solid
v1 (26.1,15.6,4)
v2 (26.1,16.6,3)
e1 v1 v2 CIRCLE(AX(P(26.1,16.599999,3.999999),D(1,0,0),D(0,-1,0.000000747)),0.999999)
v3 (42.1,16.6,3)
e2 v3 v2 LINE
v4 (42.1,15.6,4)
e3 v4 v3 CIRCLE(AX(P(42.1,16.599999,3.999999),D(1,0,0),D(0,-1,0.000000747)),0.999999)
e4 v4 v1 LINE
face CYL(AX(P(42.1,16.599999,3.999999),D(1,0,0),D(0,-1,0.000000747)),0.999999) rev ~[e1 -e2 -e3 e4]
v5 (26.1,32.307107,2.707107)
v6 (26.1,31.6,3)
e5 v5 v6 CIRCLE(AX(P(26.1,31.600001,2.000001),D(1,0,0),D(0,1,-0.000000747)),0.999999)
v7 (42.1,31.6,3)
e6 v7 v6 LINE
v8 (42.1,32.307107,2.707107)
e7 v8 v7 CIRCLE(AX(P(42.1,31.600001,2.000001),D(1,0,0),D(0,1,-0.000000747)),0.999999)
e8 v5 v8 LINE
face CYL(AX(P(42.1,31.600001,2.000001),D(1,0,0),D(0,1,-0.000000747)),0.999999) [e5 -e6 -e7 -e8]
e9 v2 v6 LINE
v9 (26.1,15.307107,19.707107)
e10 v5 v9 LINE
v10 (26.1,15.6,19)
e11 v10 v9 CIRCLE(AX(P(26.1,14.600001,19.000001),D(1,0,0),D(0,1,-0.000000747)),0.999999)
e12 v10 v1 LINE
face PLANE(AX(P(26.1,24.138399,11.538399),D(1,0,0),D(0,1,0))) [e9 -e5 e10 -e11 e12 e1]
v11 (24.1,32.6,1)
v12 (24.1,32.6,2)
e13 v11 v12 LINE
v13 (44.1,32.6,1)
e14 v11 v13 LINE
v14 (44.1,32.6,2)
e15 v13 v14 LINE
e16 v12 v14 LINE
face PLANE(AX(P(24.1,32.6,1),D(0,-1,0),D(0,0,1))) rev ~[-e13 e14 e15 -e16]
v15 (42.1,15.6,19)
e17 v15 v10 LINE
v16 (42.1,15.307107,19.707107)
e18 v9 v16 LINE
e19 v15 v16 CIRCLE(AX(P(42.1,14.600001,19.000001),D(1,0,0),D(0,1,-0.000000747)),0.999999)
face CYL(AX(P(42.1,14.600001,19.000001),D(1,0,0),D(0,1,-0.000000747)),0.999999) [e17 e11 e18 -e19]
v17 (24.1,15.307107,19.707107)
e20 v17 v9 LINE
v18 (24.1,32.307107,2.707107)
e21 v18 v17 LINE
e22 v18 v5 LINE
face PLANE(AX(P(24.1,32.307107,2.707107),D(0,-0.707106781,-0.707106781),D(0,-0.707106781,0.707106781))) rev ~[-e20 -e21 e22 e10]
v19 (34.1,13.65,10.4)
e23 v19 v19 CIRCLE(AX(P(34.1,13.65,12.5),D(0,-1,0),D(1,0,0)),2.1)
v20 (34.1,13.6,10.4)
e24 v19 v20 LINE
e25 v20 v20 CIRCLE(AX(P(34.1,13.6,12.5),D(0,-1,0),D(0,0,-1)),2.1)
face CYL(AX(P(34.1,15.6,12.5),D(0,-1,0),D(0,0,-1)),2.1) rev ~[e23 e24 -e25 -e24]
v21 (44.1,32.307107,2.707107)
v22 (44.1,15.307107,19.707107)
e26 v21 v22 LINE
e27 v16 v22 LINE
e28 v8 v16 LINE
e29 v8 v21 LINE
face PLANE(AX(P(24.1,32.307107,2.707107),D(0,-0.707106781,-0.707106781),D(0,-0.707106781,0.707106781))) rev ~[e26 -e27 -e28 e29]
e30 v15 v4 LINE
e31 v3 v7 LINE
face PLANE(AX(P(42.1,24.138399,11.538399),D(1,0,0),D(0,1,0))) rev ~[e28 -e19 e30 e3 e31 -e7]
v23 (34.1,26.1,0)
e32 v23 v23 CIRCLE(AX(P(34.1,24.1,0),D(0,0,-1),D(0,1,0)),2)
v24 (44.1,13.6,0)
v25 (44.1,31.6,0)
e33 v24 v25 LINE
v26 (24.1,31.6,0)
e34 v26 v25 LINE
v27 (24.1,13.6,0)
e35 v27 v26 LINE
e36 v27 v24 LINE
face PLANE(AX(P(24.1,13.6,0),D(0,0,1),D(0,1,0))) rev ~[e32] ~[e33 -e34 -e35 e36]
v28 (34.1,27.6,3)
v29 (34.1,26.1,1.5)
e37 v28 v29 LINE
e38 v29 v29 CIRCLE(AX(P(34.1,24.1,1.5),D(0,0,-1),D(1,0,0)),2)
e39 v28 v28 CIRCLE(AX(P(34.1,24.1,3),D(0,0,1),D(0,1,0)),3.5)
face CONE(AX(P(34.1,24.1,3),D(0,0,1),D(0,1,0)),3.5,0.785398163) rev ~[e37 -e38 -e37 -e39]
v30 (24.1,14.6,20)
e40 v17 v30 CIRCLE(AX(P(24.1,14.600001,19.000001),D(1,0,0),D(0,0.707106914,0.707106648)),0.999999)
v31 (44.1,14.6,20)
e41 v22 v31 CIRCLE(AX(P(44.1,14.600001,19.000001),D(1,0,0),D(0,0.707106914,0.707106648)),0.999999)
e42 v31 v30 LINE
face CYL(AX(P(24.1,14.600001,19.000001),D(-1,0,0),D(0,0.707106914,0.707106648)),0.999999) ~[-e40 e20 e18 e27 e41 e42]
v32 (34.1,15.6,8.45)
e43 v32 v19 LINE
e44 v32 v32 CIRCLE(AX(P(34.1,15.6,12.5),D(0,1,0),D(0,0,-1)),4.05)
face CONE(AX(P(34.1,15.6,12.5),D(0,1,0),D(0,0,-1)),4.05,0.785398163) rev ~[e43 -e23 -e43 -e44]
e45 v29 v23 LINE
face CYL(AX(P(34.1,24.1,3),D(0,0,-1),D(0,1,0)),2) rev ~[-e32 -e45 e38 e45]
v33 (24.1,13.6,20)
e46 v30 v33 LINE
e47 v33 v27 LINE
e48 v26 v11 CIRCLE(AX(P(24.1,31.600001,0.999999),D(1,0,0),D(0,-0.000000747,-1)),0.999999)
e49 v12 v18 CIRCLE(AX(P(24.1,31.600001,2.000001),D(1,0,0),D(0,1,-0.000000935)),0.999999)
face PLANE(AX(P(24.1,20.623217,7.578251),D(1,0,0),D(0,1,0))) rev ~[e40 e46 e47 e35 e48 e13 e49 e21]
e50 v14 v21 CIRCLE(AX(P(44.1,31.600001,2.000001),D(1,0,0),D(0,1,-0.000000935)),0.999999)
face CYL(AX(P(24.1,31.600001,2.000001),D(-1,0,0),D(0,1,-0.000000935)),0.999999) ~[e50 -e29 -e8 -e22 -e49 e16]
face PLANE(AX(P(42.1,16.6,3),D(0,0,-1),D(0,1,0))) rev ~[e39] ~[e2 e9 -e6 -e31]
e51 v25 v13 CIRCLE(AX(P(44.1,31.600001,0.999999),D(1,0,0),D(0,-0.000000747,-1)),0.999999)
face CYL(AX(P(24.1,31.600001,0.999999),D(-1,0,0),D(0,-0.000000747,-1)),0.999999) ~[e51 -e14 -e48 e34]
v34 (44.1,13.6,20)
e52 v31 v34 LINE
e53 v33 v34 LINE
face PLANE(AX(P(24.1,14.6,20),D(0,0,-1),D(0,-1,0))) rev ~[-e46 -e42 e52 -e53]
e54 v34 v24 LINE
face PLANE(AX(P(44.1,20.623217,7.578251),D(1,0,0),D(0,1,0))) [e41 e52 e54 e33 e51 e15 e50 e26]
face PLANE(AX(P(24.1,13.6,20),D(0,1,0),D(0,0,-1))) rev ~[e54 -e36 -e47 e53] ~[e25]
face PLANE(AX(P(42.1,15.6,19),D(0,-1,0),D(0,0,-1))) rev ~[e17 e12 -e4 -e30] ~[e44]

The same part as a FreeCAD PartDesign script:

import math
import FreeCAD as App
import Part
import Sketcher
Q = App.Units.Quantity

doc = App.newDocument("Part")
body = doc.addObject("PartDesign::Body", "Body")

# Sketch on XZ plane
sketch1 = body.newObject("Sketcher::SketchObject", "Sketch")
sketch1.AttachmentSupport = (doc.getObject("XZ_Plane"), [""])
sketch1.MapMode = "FlatFace"
sketch1.addGeometry(Part.LineSegment(App.Vector(1, 0, 0), App.Vector(19, 0, 0)), False)
sketch1.addGeometry(Part.ArcOfCircle(Part.Circle(App.Vector(19, 1, 0), App.Vector(0, 0, 1), 1), math.radians(-90), math.radians(0)), False)
sketch1.addGeometry(Part.LineSegment(App.Vector(20, 1, 0), App.Vector(20, 2, 0)), False)
sketch1.addGeometry(Part.ArcOfCircle(Part.Circle(App.Vector(19, 2, 0), App.Vector(0, 0, 1), 1), math.radians(0), math.radians(45)), False)
sketch1.addGeometry(Part.LineSegment(App.Vector(19.7, 2.7, 0), App.Vector(2.7, 19.7, 0)), False)
sketch1.addGeometry(Part.ArcOfCircle(Part.Circle(App.Vector(2, 19, 0), App.Vector(0, 0, 1), 1), math.radians(45), math.radians(90)), False)
sketch1.addGeometry(Part.LineSegment(App.Vector(2, 20, 0), App.Vector(1, 20, 0)), False)
sketch1.addGeometry(Part.LineSegment(App.Vector(1, 20, 0), App.Vector(1, 0, 0)), False)
sketch1.addConstraint(Sketcher.Constraint("Tangent", 0, 2, 1, 1))
sketch1.addConstraint(Sketcher.Constraint("Tangent", 1, 2, 2, 1))
sketch1.addConstraint(Sketcher.Constraint("Tangent", 2, 2, 3, 1))
sketch1.addConstraint(Sketcher.Constraint("Tangent", 3, 2, 4, 1))
sketch1.addConstraint(Sketcher.Constraint("Tangent", 4, 2, 5, 1))
sketch1.addConstraint(Sketcher.Constraint("Tangent", 5, 2, 6, 1))
sketch1.addConstraint(Sketcher.Constraint("Coincident", 6, 2, 7, 1))
sketch1.addConstraint(Sketcher.Constraint("Coincident", 7, 2, 0, 1))
sketch1.addConstraint(Sketcher.Constraint("Horizontal", 0))
sketch1.addConstraint(Sketcher.Constraint("Vertical", 2))
sketch1.addConstraint(Sketcher.Constraint("Horizontal", 6))
sketch1.addConstraint(Sketcher.Constraint("Vertical", 7))
sketch1.addConstraint(Sketcher.Constraint("Equal", 1, 3))
sketch1.addConstraint(Sketcher.Constraint("Equal", 3, 5))
sketch1.addConstraint(Sketcher.Constraint("PointOnObject", 0, 2, -1))
sketch1.addConstraint(Sketcher.Constraint("Equal", 6, 2))
sketch1.addConstraint(Sketcher.Constraint("Radius", 1, Q("0.999999 mm")))
sketch1.addConstraint(Sketcher.Constraint("DistanceX", 0, 1, 0, 2, Q("18 mm")))
sketch1.addConstraint(Sketcher.Constraint("DistanceX", 6, 2, 6, 1, Q("1 mm")))
sketch1.addConstraint(Sketcher.Constraint("DistanceY", 7, 2, 7, 1, Q("20 mm")))
sketch1.addConstraint(Sketcher.Constraint("DistanceX", -1, 1, 1, 3, Q("19.000001 mm")))
pad1 = body.newObject("PartDesign::Pad", "Pad")
pad1.Profile = sketch1
pad1.Length = 20

# Sketch on XZ plane
sketch2 = body.newObject("Sketcher::SketchObject", "Sketch001")
sketch2.AttachmentSupport = (doc.getObject("XZ_Plane"), [""])
sketch2.MapMode = "FlatFace"
sketch2.AttachmentOffset = App.Placement(App.Vector(0, 0, 18), App.Rotation())
sketch2.addGeometry(Part.LineSegment(App.Vector(3, 19, 0), App.Vector(3, 4, 0)), False)
sketch2.addGeometry(Part.ArcOfCircle(Part.Circle(App.Vector(4, 4, 0), App.Vector(0, 0, 1), 1), math.radians(180), math.radians(270)), False)
sketch2.addGeometry(Part.LineSegment(App.Vector(4, 3, 0), App.Vector(19, 3, 0)), False)
sketch2.addGeometry(Part.ArcOfCircle(Part.Circle(App.Vector(19, 2, 0), App.Vector(0, 0, 1), 1), math.radians(0), math.radians(90)), False)
sketch2.addGeometry(Part.LineSegment(App.Vector(20, 2, 0), App.Vector(20, 20, 0)), False)
sketch2.addGeometry(Part.LineSegment(App.Vector(20, 20, 0), App.Vector(2, 20, 0)), False)
sketch2.addGeometry(Part.ArcOfCircle(Part.Circle(App.Vector(2, 19, 0), App.Vector(0, 0, 1), 1), math.radians(0), math.radians(90)), False)
sketch2.addConstraint(Sketcher.Constraint("Tangent", 0, 2, 1, 1))
sketch2.addConstraint(Sketcher.Constraint("Tangent", 1, 2, 2, 1))
sketch2.addConstraint(Sketcher.Constraint("Tangent", 2, 2, 3, 2))
sketch2.addConstraint(Sketcher.Constraint("Tangent", 3, 1, 4, 1))
sketch2.addConstraint(Sketcher.Constraint("Coincident", 4, 2, 5, 1))
sketch2.addConstraint(Sketcher.Constraint("Tangent", 5, 2, 6, 2))
sketch2.addConstraint(Sketcher.Constraint("Tangent", 6, 1, 0, 1))
sketch2.addConstraint(Sketcher.Constraint("Vertical", 0))
sketch2.addConstraint(Sketcher.Constraint("Horizontal", 2))
sketch2.addConstraint(Sketcher.Constraint("Vertical", 4))
sketch2.addConstraint(Sketcher.Constraint("Horizontal", 5))
sketch2.addConstraint(Sketcher.Constraint("Equal", 1, 3))
sketch2.addConstraint(Sketcher.Constraint("Equal", 3, 6))
sketch2.addConstraint(Sketcher.Constraint("Equal", 2, 0))
sketch2.addConstraint(Sketcher.Constraint("Radius", 1, Q("0.999999 mm")))
sketch2.addConstraint(Sketcher.Constraint("DistanceX", 2, 1, 2, 2, Q("15 mm")))
sketch2.addConstraint(Sketcher.Constraint("DistanceX", -1, 1, 1, 3, Q("3.999999 mm")))
sketch2.addConstraint(Sketcher.Constraint("DistanceY", -1, 1, 1, 3, Q("3.999999 mm")))
pocket1 = body.newObject("PartDesign::Pocket", "Pocket")
pocket1.Profile = sketch2
pocket1.Length = 16

# Sketch on XY plane
sketch3 = body.newObject("Sketcher::SketchObject", "Sketch002")
sketch3.AttachmentSupport = (doc.getObject("XY_Plane"), [""])
sketch3.MapMode = "FlatFace"
sketch3.AttachmentOffset = App.Placement(App.Vector(0, 0, 3), App.Rotation())
sketch3.addGeometry(Part.Circle(App.Vector(11.5, -10, 0), App.Vector(0, 0, 1), 2), False)
sketch3.addConstraint(Sketcher.Constraint("Diameter", 0, Q("4 mm")))
sketch3.addConstraint(Sketcher.Constraint("DistanceY", 0, 3, -1, 1, Q("10 mm")))
sketch3.addConstraint(Sketcher.Constraint("DistanceX", -1, 1, 0, 3, Q("11.5 mm")))
doc.recompute()
hole = body.newObject("PartDesign::Hole", "Hole")
hole.Profile = sketch3
hole.ThreadType = "None"
hole.Diameter = 4
hole.DepthType = "ThroughAll"
hole.HoleCutType = "Countersink"
hole.HoleCutDiameter = 7
hole.HoleCutCountersinkAngle = 90

# Sketch on YZ plane
sketch4 = body.newObject("Sketcher::SketchObject", "Sketch003")
sketch4.AttachmentSupport = (doc.getObject("YZ_Plane"), [""])
sketch4.MapMode = "FlatFace"
sketch4.AttachmentOffset = App.Placement(App.Vector(0, 0, 3), App.Rotation())
sketch4.addGeometry(Part.Circle(App.Vector(-10, 12.5, 0), App.Vector(0, 0, 1), 2.1), False)
sketch4.addConstraint(Sketcher.Constraint("Diameter", 0, Q("4.2 mm")))
sketch4.addConstraint(Sketcher.Constraint("DistanceX", 0, 3, -1, 1, Q("10 mm")))
sketch4.addConstraint(Sketcher.Constraint("DistanceY", -1, 1, 0, 3, Q("12.5 mm")))
doc.recompute()
hole2 = body.newObject("PartDesign::Hole", "Hole001")
hole2.Profile = sketch4
hole2.ThreadType = "None"
hole2.Diameter = 4.2
hole2.DepthType = "Dimension"
hole2.Depth = 25
hole2.DrillPoint = "Flat"
hole2.HoleCutType = "Countersink"
hole2.HoleCutDiameter = 8.1
hole2.HoleCutCountersinkAngle = 90
body2 = doc.addObject("PartDesign::Body", "Body001")
doc.recompute()

body.Placement = App.Placement(App.Vector(24.1, 12.6, 0), App.Rotation(App.Vector(0, 0, 1), 90))
boolean = body2.newObject("PartDesign::Boolean", "Boolean")
boolean.Type = "Fuse"
boolean.addObjects([body])

doc.recompute()
